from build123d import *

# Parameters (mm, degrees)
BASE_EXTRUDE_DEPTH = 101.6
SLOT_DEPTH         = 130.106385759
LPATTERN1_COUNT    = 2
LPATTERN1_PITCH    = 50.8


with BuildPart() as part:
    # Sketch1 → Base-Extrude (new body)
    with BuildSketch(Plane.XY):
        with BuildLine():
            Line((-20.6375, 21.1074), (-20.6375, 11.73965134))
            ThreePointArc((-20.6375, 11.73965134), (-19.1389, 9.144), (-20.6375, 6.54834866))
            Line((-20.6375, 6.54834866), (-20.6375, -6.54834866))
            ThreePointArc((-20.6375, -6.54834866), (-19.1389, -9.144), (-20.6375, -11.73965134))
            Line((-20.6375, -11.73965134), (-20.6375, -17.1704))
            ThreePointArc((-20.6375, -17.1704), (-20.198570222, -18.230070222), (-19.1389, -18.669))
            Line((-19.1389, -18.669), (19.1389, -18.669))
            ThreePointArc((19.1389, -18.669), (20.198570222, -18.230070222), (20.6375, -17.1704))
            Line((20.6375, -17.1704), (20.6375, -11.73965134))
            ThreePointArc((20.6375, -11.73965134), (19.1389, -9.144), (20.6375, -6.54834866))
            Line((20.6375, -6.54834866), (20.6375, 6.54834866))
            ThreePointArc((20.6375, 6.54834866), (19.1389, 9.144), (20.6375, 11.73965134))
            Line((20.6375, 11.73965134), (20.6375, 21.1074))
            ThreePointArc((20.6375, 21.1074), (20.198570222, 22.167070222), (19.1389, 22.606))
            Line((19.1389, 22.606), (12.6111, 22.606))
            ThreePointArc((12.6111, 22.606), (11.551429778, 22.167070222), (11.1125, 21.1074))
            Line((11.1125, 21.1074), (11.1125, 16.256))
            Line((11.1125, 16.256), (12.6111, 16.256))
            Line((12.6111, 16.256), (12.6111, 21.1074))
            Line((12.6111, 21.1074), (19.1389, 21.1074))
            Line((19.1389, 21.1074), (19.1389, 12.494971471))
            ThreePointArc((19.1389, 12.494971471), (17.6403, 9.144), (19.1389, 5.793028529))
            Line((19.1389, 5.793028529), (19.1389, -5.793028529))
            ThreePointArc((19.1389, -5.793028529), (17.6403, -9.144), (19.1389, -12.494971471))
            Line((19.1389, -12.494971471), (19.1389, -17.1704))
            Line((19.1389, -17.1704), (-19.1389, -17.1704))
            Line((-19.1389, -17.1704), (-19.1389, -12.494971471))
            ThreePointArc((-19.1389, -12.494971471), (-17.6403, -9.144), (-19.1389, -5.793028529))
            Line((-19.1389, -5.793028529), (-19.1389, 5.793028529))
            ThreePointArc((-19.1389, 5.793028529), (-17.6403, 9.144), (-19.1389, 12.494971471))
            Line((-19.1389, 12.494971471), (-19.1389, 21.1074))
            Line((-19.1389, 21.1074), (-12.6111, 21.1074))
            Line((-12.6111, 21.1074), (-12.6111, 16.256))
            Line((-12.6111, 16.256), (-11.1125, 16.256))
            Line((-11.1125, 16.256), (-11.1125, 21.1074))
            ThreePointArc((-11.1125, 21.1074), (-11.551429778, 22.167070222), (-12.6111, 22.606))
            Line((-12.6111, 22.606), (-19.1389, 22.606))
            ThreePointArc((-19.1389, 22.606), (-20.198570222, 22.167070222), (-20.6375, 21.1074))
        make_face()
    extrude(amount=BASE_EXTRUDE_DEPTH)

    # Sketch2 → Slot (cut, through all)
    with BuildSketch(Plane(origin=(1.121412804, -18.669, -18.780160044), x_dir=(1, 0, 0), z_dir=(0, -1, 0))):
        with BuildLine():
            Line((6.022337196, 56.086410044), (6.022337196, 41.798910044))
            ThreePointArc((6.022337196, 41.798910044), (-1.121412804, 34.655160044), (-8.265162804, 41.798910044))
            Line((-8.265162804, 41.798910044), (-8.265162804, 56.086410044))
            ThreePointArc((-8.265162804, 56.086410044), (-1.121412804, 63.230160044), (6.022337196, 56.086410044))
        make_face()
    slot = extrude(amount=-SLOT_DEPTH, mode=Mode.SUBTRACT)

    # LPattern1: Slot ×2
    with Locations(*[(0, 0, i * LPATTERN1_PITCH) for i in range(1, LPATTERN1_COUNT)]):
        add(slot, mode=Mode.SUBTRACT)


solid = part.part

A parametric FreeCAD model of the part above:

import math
import FreeCAD as App
import Part
import Sketcher

V = App.Vector
Q = App.Units.Quantity

doc = App.newDocument("Part")
body = doc.addObject("PartDesign::Body", "Body")

sketch1 = body.newObject("Sketcher::SketchObject", "Sketch")
sketch1.AttachmentSupport = (doc.getObject("XY_Plane"), [""])
sketch1.MapMode = "FlatFace"
sketch1.addGeometry(Part.LineSegment(V(-20.6, 21.1, 0), V(-20.6, 11.7, 0)), False)
sketch1.addGeometry(Part.ArcOfCircle(Part.Circle(V(-22.1, 9.1, 0), V(0, 0, 1), 3), math.radians(-60), math.radians(60)), False)
sketch1.addGeometry(Part.LineSegment(V(-20.6, 6.5, 0), V(-20.6, -6.5, 0)), False)
sketch1.addGeometry(Part.ArcOfCircle(Part.Circle(V(-22.1, -9.1, 0), V(0, 0, 1), 3), math.radians(-60), math.radians(60)), False)
sketch1.addGeometry(Part.LineSegment(V(-20.6, -11.7, 0), V(-20.6, -17.2, 0)), False)
sketch1.addGeometry(Part.ArcOfCircle(Part.Circle(V(-19.1, -17.2, 0), V(0, 0, 1), 1.5), math.radians(-180), math.radians(-90)), False)
sketch1.addGeometry(Part.LineSegment(V(-19.1, -18.7, 0), V(19.1, -18.7, 0)), False)
sketch1.addGeometry(Part.ArcOfCircle(Part.Circle(V(19.1, -17.2, 0), V(0, 0, 1), 1.5), math.radians(-90), math.radians(0)), False)
sketch1.addGeometry(Part.LineSegment(V(20.6, -17.2, 0), V(20.6, -11.7, 0)), False)
sketch1.addGeometry(Part.ArcOfCircle(Part.Circle(V(22.1, -9.1, 0), V(0, 0, 1), 3), math.radians(120), math.radians(240)), False)
sketch1.addGeometry(Part.LineSegment(V(20.6, -6.5, 0), V(20.6, 6.5, 0)), False)
sketch1.addGeometry(Part.ArcOfCircle(Part.Circle(V(22.1, 9.1, 0), V(0, 0, 1), 3), math.radians(120), math.radians(240)), False)
sketch1.addGeometry(Part.LineSegment(V(20.6, 11.7, 0), V(20.6, 21.1, 0)), False)
sketch1.addGeometry(Part.ArcOfCircle(Part.Circle(V(19.1, 21.1, 0), V(0, 0, 1), 1.5), math.radians(0), math.radians(90)), False)
sketch1.addGeometry(Part.LineSegment(V(19.1, 22.6, 0), V(12.6, 22.6, 0)), False)
sketch1.addGeometry(Part.ArcOfCircle(Part.Circle(V(12.6, 21.1, 0), V(0, 0, 1), 1.5), math.radians(90), math.radians(180)), False)
sketch1.addGeometry(Part.LineSegment(V(11.1, 21.1, 0), V(11.1, 16.3, 0)), False)
sketch1.addGeometry(Part.LineSegment(V(11.1, 16.3, 0), V(12.6, 16.3, 0)), False)
sketch1.addGeometry(Part.LineSegment(V(12.6, 16.3, 0), V(12.6, 21.1, 0)), False)
sketch1.addGeometry(Part.LineSegment(V(12.6, 21.1, 0), V(19.1, 21.1, 0)), False)
sketch1.addGeometry(Part.LineSegment(V(19.1, 21.1, 0), V(19.1, 12.5, 0)), False)
sketch1.addGeometry(Part.ArcOfCircle(Part.Circle(V(22.1, 9.1, 0), V(0, 0, 1), 4.5), math.radians(132), math.radians(228)), False)
sketch1.addGeometry(Part.LineSegment(V(19.1, 5.8, 0), V(19.1, -5.8, 0)), False)
sketch1.addGeometry(Part.ArcOfCircle(Part.Circle(V(22.1, -9.1, 0), V(0, 0, 1), 4.5), math.radians(132), math.radians(228)), False)
sketch1.addGeometry(Part.LineSegment(V(19.1, -12.5, 0), V(19.1, -17.2, 0)), False)
sketch1.addGeometry(Part.LineSegment(V(19.1, -17.2, 0), V(-19.1, -17.2, 0)), False)
sketch1.addGeometry(Part.LineSegment(V(-19.1, -17.2, 0), V(-19.1, -12.5, 0)), False)
sketch1.addGeometry(Part.ArcOfCircle(Part.Circle(V(-22.1, -9.1, 0), V(0, 0, 1), 4.5), math.radians(-48), math.radians(48)), False)
sketch1.addGeometry(Part.LineSegment(V(-19.1, -5.8, 0), V(-19.1, 5.8, 0)), False)
sketch1.addGeometry(Part.ArcOfCircle(Part.Circle(V(-22.1, 9.1, 0), V(0, 0, 1), 4.5), math.radians(-48), math.radians(48)), False)
sketch1.addGeometry(Part.LineSegment(V(-19.1, 12.5, 0), V(-19.1, 21.1, 0)), False)
sketch1.addGeometry(Part.LineSegment(V(-19.1, 21.1, 0), V(-12.6, 21.1, 0)), False)
sketch1.addGeometry(Part.LineSegment(V(-12.6, 21.1, 0), V(-12.6, 16.3, 0)), False)
sketch1.addGeometry(Part.LineSegment(V(-12.6, 16.3, 0), V(-11.1, 16.3, 0)), False)
sketch1.addGeometry(Part.LineSegment(V(-11.1, 16.3, 0), V(-11.1, 21.1, 0)), False)
sketch1.addGeometry(Part.ArcOfCircle(Part.Circle(V(-12.6, 21.1, 0), V(0, 0, 1), 1.5), math.radians(0), math.radians(90)), False)
sketch1.addGeometry(Part.LineSegment(V(-12.6, 22.6, 0), V(-19.1, 22.6, 0)), False)
sketch1.addGeometry(Part.ArcOfCircle(Part.Circle(V(-19.1, 21.1, 0), V(0, 0, 1), 1.5), math.radians(90), math.radians(180)), False)
sketch1.addConstraint(Sketcher.Constraint("Coincident", 0, 2, 1, 2))
sketch1.addConstraint(Sketcher.Constraint("Coincident", 1, 1, 2, 1))
sketch1.addConstraint(Sketcher.Constraint("Coincident", 2, 2, 3, 2))
sketch1.addConstraint(Sketcher.Constraint("Coincident", 3, 1, 4, 1))
sketch1.addConstraint(Sketcher.Constraint("Tangent", 4, 2, 5, 1))
sketch1.addConstraint(Sketcher.Constraint("Tangent", 5, 2, 6, 1))
sketch1.addConstraint(Sketcher.Constraint("Tangent", 6, 2, 7, 1))
sketch1.addConstraint(Sketcher.Constraint("Tangent", 7, 2, 8, 1))
sketch1.addConstraint(Sketcher.Constraint("Coincident", 8, 2, 9, 2))
sketch1.addConstraint(Sketcher.Constraint("Coincident", 9, 1, 10, 1))
sketch1.addConstraint(Sketcher.Constraint("Coincident", 10, 2, 11, 2))
sketch1.addConstraint(Sketcher.Constraint("Coincident", 11, 1, 12, 1))
sketch1.addConstraint(Sketcher.Constraint("Tangent", 12, 2, 13, 1))
sketch1.addConstraint(Sketcher.Constraint("Tangent", 13, 2, 14, 1))
sketch1.addConstraint(Sketcher.Constraint("Tangent", 14, 2, 15, 1))
sketch1.addConstraint(Sketcher.Constraint("Tangent", 15, 2, 16, 1))
sketch1.addConstraint(Sketcher.Constraint("Coincident", 16, 2, 17, 1))
sketch1.addConstraint(Sketcher.Constraint("Coincident", 17, 2, 18, 1))
sketch1.addConstraint(Sketcher.Constraint("Coincident", 18, 2, 19, 1))
sketch1.addConstraint(Sketcher.Constraint("Coincident", 19, 2, 20, 1))
sketch1.addConstraint(Sketcher.Constraint("Coincident", 20, 2, 21, 1))
sketch1.addConstraint(Sketcher.Constraint("Coincident", 21, 2, 22, 1))
sketch1.addConstraint(Sketcher.Constraint("Coincident", 22, 2, 23, 1))
sketch1.addConstraint(Sketcher.Constraint("Coincident", 23, 2, 24, 1))
sketch1.addConstraint(Sketcher.Constraint("Coincident", 24, 2, 25, 1))
sketch1.addConstraint(Sketcher.Constraint("Coincident", 25, 2, 26, 1))
sketch1.addConstraint(Sketcher.Constraint("Coincident", 26, 2, 27, 1))
sketch1.addConstraint(Sketcher.Constraint("Coincident", 27, 2, 28, 1))
sketch1.addConstraint(Sketcher.Constraint("Coincident", 28, 2, 29, 1))
sketch1.addConstraint(Sketcher.Constraint("Coincident", 29, 2, 30, 1))
sketch1.addConstraint(Sketcher.Constraint("Coincident", 30, 2, 31, 1))
sketch1.addConstraint(Sketcher.Constraint("Coincident", 31, 2, 32, 1))
sketch1.addConstraint(Sketcher.Constraint("Coincident", 32, 2, 33, 1))
sketch1.addConstraint(Sketcher.Constraint("Coincident", 33, 2, 34, 1))
sketch1.addConstraint(Sketcher.Constraint("Tangent", 34, 2, 35, 1))
sketch1.addConstraint(Sketcher.Constraint("Tangent", 35, 2, 36, 1))
sketch1.addConstraint(Sketcher.Constraint("Tangent", 36, 2, 37, 1))
sketch1.addConstraint(Sketcher.Constraint("Tangent", 37, 2, 0, 1))
sketch1.addConstraint(Sketcher.Constraint("Vertical", 0))
sketch1.addConstraint(Sketcher.Constraint("Vertical", 2))
sketch1.addConstraint(Sketcher.Constraint("Vertical", 4))
sketch1.addConstraint(Sketcher.Constraint("Horizontal", 6))
sketch1.addConstraint(Sketcher.Constraint("Vertical", 8))
sketch1.addConstraint(Sketcher.Constraint("Vertical", 10))
sketch1.addConstraint(Sketcher.Constraint("Vertical", 12))
sketch1.addConstraint(Sketcher.Constraint("Horizontal", 14))
sketch1.addConstraint(Sketcher.Constraint("Vertical", 16))
sketch1.addConstraint(Sketcher.Constraint("Horizontal", 17))
sketch1.addConstraint(Sketcher.Constraint("Vertical", 18))
sketch1.addConstraint(Sketcher.Constraint("Horizontal", 19))
sketch1.addConstraint(Sketcher.Constraint("Vertical", 20))
sketch1.addConstraint(Sketcher.Constraint("Vertical", 22))
sketch1.addConstraint(Sketcher.Constraint("Vertical", 24))
sketch1.addConstraint(Sketcher.Constraint("Horizontal", 25))
sketch1.addConstraint(Sketcher.Constraint("Vertical", 26))
sketch1.addConstraint(Sketcher.Constraint("Vertical", 28))
sketch1.addConstraint(Sketcher.Constraint("Vertical", 30))
sketch1.addConstraint(Sketcher.Constraint("Horizontal", 31))
sketch1.addConstraint(Sketcher.Constraint("Vertical", 32))
sketch1.addConstraint(Sketcher.Constraint("Horizontal", 33))
sketch1.addConstraint(Sketcher.Constraint("Vertical", 34))
sketch1.addConstraint(Sketcher.Constraint("Horizontal", 36))
sketch1.addConstraint(Sketcher.Constraint("Coincident", 21, 3, 11, 3))
sketch1.addConstraint(Sketcher.Constraint("Coincident", 23, 3, 9, 3))
sketch1.addConstraint(Sketcher.Constraint("Coincident", 27, 3, 3, 3))
sketch1.addConstraint(Sketcher.Constraint("Coincident", 29, 3, 1, 3))
sketch1.addConstraint(Sketcher.Constraint("Coincident", 18, 2, 15, 3))
sketch1.addConstraint(Sketcher.Constraint("Coincident", 19, 2, 13, 3))
sketch1.addConstraint(Sketcher.Constraint("Coincident", 24, 2, 7, 3))
sketch1.addConstraint(Sketcher.Constraint("Coincident", 25, 2, 5, 3))
sketch1.addConstraint(Sketcher.Constraint("Coincident", 30, 2, 37, 3))
sketch1.addConstraint(Sketcher.Constraint("Coincident", 31, 2, 35, 3))
sketch1.addConstraint(Sketcher.Constraint("Equal", 1, 3))
sketch1.addConstraint(Sketcher.Constraint("Equal", 3, 9))
sketch1.addConstraint(Sketcher.Constraint("Equal", 9, 11))
sketch1.addConstraint(Sketcher.Constraint("Equal", 7, 13))
sketch1.addConstraint(Sketcher.Constraint("Equal", 21, 23))
sketch1.addConstraint(Sketcher.Constraint("Equal", 23, 27))
sketch1.addConstraint(Sketcher.Constraint("Equal", 27, 29))
sketch1.addConstraint(Sketcher.Constraint("Equal", 15, 35))
sketch1.addConstraint(Sketcher.Constraint("Symmetric", 1, 3, 9, 3, -1, 1))
sketch1.addConstraint(Sketcher.Constraint("Symmetric", 3, 3, 11, 3, -1, 1))
sketch1.addConstraint(Sketcher.Constraint("Symmetric", 3, 3, 9, 3, -2))
sketch1.addConstraint(Sketcher.Constraint("Symmetric", 15, 3, 35, 3, -2))
sketch1.addConstraint(Sketcher.Constraint("Horizontal", 3, 1, 8, 2))
sketch1.addConstraint(Sketcher.Constraint("Horizontal", 2, 2, 9, 1))
sketch1.addConstraint(Sketcher.Constraint("Horizontal", 0, 2, 11, 1))
sketch1.addConstraint(Sketcher.Constraint("Horizontal", 22, 2, 27, 2))
sketch1.addConstraint(Sketcher.Constraint("Horizontal", 17, 2, 32, 2))
sketch1.addConstraint(Sketcher.Constraint("Vertical", 7, 3, 13, 3))
sketch1.addConstraint(Sketcher.Constraint("Vertical", 0, 2, 1, 1))
sketch1.addConstraint(Sketcher.Constraint("Vertical", 20, 2, 21, 2))
sketch1.addConstraint(Sketcher.Constraint("Radius", 1, Q("0.118 in")))
sketch1.addConstraint(Sketcher.Constraint("Radius", 5, Q("0.059 in")))
sketch1.addConstraint(Sketcher.Constraint("Radius", 21, Q("0.177 in")))
sketch1.addConstraint(Sketcher.Constraint("DistanceX", 6, 1, 6, 2, Q("1.507 in")))
sketch1.addConstraint(Sketcher.Constraint("DistanceX", 14, 2, 14, 1, Q("0.257 in")))
sketch1.addConstraint(Sketcher.Constraint("DistanceY", 16, 2, 16, 1, Q("0.191 in")))
sketch1.addConstraint(Sketcher.Constraint("DistanceY", -1, 1, 1, 3, Q("0.36 in")))
sketch1.addConstraint(Sketcher.Constraint("DistanceY", -1, 1, 13, 2, Q("0.89 in")))
sketch1.addConstraint(Sketcher.Constraint("DistanceY", 5, 3, -1, 1, Q("0.676 in")))
sketch1.addConstraint(Sketcher.Constraint("DistanceX", 3, 3, 5, 3, Q("0.118 in")))
pad1 = body.newObject("PartDesign::Pad", "Pad")
pad1.Profile = sketch1
pad1.Length = Q("4 in")

sketch2 = body.newObject("Sketcher::SketchObject", "Sketch001")
sketch2.AttachmentSupport = (doc.getObject("XZ_Plane"), [""])
sketch2.MapMode = "FlatFace"
sketch2.AttachmentOffset = App.Placement(V(0, 0, 0.735 * 25.4), App.Rotation())
sketch2.addGeometry(Part.LineSegment(V(7, 23, 0), V(7, 37, 0)), False)
sketch2.addGeometry(Part.ArcOfCircle(Part.Circle(V(0, 37, 0), V(0, 0, 1), 7), math.radians(0), math.radians(180)), False)
sketch2.addGeometry(Part.LineSegment(V(-7, 37, 0), V(-7, 23, 0)), False)
sketch2.addGeometry(Part.ArcOfCircle(Part.Circle(V(0, 23, 0), V(0, 0, 1), 7), math.radians(180), math.radians(360)), False)
sketch2.addConstraint(Sketcher.Constraint("Tangent", 0, 2, 1, 1))
sketch2.addConstraint(Sketcher.Constraint("Tangent", 1, 2, 2, 1))
sketch2.addConstraint(Sketcher.Constraint("Tangent", 2, 2, 3, 1))
sketch2.addConstraint(Sketcher.Constraint("Tangent", 3, 2, 0, 1))
sketch2.addConstraint(Sketcher.Constraint("Vertical", 0))
sketch2.addConstraint(Sketcher.Constraint("Vertical", 2))
sketch2.addConstraint(Sketcher.Constraint("PointOnObject", 1, 3, -2))
sketch2.addConstraint(Sketcher.Constraint("Radius", 1, Q("0.28125 in")))
sketch2.addConstraint(Sketcher.Constraint("DistanceY", 0, 1, 0, 2, Q("0.5625 in")))
sketch2.addConstraint(Sketcher.Constraint("DistanceY", -1, 1, 1, 3, Q("1.46875 in")))
pocket1 = body.newObject("PartDesign::Pocket", "Pocket")
pocket1.Profile = sketch2
pocket1.Type = "ThroughAll"
doc.recompute()

linearpattern = body.newObject("PartDesign::LinearPattern", "LinearPattern")
linearpattern.Originals = [pocket1]
linearpattern.Direction = (doc.getObject("Z_Axis"), [""])
linearpattern.Mode = "offset"
linearpattern.Offset = Q("2 in")
linearpattern.Occurrences = 2
body.Tip = linearpattern

doc.recompute()
